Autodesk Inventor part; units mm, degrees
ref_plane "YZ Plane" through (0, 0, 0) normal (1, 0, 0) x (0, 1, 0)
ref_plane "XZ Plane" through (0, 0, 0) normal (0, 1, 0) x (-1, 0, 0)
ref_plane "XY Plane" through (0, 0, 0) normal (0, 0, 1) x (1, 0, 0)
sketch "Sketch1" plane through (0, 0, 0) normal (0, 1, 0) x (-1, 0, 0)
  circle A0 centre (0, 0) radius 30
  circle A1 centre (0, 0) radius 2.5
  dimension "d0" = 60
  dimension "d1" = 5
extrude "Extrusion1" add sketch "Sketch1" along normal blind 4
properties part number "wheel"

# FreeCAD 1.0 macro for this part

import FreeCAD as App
import Part
import Sketcher

V = App.Vector

doc = App.newDocument("Part")
body = doc.addObject("PartDesign::Body", "Body")

# Sketch on XZ plane
sketch1 = body.newObject("Sketcher::SketchObject", "Sketch")
sketch1.AttachmentSupport = (doc.getObject("XZ_Plane"), [""])
sketch1.MapMode = "FlatFace"
sketch1.addGeometry([
    Part.Circle(V(0, 0, 0), V(0, 0, 1), 30),
    Part.Circle(V(0, 0, 0), V(0, 0, 1), 2.5),
], False)
sketch1.addConstraint([
    Sketcher.Constraint("Coincident", 0, 3, -1, 1),
    Sketcher.Constraint("Coincident", 1, 3, -1, 1),
    Sketcher.Constraint("Diameter", 0, 60.0),
    Sketcher.Constraint("Diameter", 1, 5.0),
])
pad1 = body.newObject("PartDesign::Pad", "Pad")
pad1.Profile = sketch1
pad1.Length = 4
pad1.Reversed = True

doc.recompute()
